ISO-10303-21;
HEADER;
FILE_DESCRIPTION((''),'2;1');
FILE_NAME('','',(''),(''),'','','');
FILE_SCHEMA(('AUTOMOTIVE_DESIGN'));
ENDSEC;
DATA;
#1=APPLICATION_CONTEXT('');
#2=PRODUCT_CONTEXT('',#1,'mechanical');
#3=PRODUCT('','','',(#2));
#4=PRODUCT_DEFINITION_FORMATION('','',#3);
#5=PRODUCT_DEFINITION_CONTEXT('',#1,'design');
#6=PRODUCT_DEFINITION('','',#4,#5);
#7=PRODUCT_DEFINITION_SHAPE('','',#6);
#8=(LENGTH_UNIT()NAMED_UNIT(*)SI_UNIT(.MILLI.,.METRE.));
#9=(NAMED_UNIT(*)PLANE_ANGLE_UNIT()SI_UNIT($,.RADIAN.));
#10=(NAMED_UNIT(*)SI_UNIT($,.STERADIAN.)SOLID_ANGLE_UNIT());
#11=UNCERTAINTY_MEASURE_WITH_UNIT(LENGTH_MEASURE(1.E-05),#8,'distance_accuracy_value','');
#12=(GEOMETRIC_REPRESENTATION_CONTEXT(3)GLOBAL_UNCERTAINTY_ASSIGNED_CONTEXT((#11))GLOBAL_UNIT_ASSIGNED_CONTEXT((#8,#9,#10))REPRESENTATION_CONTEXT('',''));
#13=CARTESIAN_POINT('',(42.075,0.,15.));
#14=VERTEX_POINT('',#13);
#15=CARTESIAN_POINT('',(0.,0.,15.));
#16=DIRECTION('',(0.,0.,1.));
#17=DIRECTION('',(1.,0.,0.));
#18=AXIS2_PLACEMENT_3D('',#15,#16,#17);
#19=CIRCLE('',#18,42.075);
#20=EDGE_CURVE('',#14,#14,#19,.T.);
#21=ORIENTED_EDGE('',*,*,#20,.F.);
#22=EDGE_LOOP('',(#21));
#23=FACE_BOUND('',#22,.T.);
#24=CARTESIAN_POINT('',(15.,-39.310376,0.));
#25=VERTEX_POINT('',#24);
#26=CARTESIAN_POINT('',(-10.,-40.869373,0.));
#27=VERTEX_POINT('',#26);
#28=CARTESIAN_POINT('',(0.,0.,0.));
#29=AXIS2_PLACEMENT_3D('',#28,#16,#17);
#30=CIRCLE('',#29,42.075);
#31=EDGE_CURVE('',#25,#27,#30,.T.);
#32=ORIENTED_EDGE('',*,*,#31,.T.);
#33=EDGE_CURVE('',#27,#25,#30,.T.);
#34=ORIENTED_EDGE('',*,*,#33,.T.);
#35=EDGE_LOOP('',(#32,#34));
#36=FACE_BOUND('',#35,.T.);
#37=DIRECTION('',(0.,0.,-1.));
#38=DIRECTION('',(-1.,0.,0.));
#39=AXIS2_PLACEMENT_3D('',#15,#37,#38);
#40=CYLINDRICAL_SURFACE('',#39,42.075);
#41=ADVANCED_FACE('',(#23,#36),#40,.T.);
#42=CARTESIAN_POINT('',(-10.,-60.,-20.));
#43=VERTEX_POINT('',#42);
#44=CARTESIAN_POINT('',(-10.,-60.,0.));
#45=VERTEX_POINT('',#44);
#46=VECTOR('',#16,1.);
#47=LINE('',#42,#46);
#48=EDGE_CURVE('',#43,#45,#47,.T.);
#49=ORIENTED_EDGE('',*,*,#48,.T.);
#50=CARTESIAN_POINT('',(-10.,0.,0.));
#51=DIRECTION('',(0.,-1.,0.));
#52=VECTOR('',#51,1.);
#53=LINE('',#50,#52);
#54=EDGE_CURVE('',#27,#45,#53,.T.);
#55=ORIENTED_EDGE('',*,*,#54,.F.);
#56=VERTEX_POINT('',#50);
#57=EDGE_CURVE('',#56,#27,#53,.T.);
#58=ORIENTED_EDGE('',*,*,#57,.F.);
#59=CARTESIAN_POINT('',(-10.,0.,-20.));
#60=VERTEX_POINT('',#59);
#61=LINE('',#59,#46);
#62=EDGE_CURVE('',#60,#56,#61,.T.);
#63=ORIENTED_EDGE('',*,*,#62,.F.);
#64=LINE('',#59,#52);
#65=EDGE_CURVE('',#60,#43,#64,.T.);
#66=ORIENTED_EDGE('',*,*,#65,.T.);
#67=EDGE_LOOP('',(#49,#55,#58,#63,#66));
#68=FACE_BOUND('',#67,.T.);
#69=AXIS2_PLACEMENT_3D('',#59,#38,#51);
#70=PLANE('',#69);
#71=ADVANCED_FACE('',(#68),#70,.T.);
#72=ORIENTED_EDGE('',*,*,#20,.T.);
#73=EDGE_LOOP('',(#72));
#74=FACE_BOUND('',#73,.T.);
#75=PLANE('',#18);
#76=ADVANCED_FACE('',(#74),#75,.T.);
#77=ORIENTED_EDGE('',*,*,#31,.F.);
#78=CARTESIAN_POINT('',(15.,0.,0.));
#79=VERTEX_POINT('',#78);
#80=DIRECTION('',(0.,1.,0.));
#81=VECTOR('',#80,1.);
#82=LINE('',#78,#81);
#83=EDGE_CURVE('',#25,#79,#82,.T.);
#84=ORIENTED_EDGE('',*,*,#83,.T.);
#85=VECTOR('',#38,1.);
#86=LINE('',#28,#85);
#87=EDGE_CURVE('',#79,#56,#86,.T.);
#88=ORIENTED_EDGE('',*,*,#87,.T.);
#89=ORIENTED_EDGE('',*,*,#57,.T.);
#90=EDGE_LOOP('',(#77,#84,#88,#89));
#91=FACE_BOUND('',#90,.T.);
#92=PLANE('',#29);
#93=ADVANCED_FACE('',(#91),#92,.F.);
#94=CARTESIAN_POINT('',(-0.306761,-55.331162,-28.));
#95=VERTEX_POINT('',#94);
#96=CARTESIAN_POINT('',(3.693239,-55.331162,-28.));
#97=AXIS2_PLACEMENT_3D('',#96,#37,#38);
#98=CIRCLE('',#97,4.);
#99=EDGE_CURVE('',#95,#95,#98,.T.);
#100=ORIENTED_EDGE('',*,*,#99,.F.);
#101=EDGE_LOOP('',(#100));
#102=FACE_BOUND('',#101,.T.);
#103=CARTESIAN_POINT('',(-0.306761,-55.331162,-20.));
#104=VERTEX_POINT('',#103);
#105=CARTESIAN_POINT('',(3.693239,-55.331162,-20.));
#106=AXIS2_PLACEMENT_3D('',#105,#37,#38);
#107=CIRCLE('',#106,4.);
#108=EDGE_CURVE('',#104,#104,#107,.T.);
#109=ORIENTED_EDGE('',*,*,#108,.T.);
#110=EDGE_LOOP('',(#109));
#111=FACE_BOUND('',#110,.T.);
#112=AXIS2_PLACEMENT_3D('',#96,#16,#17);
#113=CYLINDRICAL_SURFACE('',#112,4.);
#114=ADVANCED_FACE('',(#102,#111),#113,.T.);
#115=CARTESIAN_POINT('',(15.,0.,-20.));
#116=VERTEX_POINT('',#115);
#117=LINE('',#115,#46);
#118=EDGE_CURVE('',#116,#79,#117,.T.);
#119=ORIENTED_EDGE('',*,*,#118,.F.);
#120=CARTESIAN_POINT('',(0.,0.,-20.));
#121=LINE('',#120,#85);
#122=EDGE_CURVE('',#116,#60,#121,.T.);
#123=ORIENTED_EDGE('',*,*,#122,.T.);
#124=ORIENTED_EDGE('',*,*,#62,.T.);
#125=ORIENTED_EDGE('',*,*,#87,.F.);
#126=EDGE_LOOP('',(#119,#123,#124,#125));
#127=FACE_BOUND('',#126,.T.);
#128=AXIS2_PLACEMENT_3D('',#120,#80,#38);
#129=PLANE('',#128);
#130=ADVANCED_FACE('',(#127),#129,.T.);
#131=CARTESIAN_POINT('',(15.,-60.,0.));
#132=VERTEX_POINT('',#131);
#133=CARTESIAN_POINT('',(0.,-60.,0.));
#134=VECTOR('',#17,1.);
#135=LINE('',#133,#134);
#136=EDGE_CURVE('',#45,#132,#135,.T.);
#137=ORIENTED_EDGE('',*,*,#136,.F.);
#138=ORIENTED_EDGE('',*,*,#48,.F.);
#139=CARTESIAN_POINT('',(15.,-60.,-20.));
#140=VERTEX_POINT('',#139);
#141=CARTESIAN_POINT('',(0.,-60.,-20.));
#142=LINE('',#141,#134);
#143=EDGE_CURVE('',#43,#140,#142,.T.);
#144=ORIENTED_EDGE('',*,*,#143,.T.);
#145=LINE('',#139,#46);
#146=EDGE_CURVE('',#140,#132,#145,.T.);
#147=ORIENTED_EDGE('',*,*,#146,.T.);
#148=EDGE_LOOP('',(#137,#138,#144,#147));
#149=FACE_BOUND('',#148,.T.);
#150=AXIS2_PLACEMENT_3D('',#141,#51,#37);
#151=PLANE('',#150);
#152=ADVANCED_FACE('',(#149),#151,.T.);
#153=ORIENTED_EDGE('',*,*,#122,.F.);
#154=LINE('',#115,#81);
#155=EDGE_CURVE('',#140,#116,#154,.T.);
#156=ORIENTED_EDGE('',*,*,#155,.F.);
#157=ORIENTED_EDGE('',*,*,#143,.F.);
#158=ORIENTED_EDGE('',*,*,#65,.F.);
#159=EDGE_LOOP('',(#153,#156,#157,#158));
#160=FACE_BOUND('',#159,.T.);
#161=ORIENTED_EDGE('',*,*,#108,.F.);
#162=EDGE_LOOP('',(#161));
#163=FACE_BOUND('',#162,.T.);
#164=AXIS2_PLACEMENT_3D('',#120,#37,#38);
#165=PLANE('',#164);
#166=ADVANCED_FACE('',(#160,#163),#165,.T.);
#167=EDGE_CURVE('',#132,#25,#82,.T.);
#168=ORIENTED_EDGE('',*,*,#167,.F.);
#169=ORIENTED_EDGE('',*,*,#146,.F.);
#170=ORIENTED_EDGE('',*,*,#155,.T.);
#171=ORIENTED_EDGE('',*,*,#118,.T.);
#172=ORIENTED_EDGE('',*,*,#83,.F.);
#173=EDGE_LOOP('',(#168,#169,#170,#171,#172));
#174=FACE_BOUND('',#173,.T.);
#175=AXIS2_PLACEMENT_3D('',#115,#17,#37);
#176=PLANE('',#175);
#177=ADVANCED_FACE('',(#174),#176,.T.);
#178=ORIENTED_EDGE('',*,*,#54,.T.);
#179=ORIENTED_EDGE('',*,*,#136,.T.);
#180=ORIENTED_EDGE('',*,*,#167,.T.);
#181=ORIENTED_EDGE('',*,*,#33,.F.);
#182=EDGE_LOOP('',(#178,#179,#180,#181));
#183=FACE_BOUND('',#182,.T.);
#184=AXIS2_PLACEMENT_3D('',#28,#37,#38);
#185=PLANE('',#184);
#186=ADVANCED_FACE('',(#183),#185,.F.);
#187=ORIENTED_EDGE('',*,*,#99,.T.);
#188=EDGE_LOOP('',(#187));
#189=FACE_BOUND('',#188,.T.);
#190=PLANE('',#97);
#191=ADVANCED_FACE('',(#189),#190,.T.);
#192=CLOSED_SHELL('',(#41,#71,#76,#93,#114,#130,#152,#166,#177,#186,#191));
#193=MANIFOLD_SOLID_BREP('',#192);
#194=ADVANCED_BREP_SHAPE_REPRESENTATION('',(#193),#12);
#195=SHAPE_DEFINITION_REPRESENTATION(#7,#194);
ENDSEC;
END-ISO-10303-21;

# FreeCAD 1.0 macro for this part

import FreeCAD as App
import Part
import Sketcher


def add_polygon(sketch, points):
    """Adds a closed chain of lines whose ends are joined by coincident constraints."""
    first, n = sketch.GeometryCount, len(points)
    for a, b in zip(points, points[1:] + points[:1]):
        sketch.addGeometry(Part.LineSegment(App.Vector(*a, 0), App.Vector(*b, 0)), False)
    for i in range(n):
        sketch.addConstraint(Sketcher.Constraint("Coincident", first + i, 2, first + (i + 1) % n, 1))

doc = App.newDocument("Part")
body = doc.addObject("PartDesign::Body", "Body")

sketch1 = body.newObject("Sketcher::SketchObject", "Sketch")
sketch1.AttachmentSupport = (doc.getObject("XY_Plane"), [""])
sketch1.MapMode = "FlatFace"
sketch1.addGeometry(Part.Circle(App.Vector(0, 0, 0), App.Vector(0, 0, 1), 42.075), False)
sketch1.addConstraint([
    Sketcher.Constraint("Coincident", 0, 3, -1, 1),
    Sketcher.Constraint("Diameter", 0, 84.15),
])
pad1 = body.newObject("PartDesign::Pad", "Pad")
pad1.Profile = sketch1
pad1.Length = 15

sketch2 = body.newObject("Sketcher::SketchObject", "Sketch001")
sketch2.AttachmentSupport = (doc.getObject("XY_Plane"), [""])
sketch2.MapMode = "FlatFace"
add_polygon(sketch2, [(-10, 0), (15, 0), (15, -60), (-10, -60)])
sketch2.addConstraint([
    Sketcher.Constraint("Horizontal", 0),
    Sketcher.Constraint("Vertical", 1),
    Sketcher.Constraint("Horizontal", 2),
    Sketcher.Constraint("Vertical", 3),
    Sketcher.Constraint("PointOnObject", 0, 2, -1),
    Sketcher.Constraint("DistanceX", 0, 1, 0, 2, 25.0),
    Sketcher.Constraint("DistanceY", 1, 2, 1, 1, 60.0),
    Sketcher.Constraint("DistanceX", -1, 1, 0, 2, 15.0),
])
pad2 = body.newObject("PartDesign::Pad", "Pad001")
pad2.Profile = sketch2
pad2.Length = 20
pad2.Reversed = True

sketch3 = body.newObject("Sketcher::SketchObject", "Sketch002")
sketch3.AttachmentSupport = (doc.getObject("XY_Plane"), [""])
sketch3.MapMode = "FlatFace"
sketch3.AttachmentOffset = App.Placement(App.Vector(0, 0, -20), App.Rotation())
sketch3.addGeometry(Part.Circle(App.Vector(3.693239, -55.331162, 0), App.Vector(0, 0, 1), 4), False)
sketch3.addConstraint([
    Sketcher.Constraint("Diameter", 0, 8.0),
    Sketcher.Constraint("DistanceX", -1, 1, 0, 3, 3.693239),
    Sketcher.Constraint("DistanceY", 0, 3, -1, 1, 55.331162),
])
pad3 = body.newObject("PartDesign::Pad", "Pad002")
pad3.Profile = sketch3
pad3.Length = 8
pad3.Reversed = True

doc.recompute()
